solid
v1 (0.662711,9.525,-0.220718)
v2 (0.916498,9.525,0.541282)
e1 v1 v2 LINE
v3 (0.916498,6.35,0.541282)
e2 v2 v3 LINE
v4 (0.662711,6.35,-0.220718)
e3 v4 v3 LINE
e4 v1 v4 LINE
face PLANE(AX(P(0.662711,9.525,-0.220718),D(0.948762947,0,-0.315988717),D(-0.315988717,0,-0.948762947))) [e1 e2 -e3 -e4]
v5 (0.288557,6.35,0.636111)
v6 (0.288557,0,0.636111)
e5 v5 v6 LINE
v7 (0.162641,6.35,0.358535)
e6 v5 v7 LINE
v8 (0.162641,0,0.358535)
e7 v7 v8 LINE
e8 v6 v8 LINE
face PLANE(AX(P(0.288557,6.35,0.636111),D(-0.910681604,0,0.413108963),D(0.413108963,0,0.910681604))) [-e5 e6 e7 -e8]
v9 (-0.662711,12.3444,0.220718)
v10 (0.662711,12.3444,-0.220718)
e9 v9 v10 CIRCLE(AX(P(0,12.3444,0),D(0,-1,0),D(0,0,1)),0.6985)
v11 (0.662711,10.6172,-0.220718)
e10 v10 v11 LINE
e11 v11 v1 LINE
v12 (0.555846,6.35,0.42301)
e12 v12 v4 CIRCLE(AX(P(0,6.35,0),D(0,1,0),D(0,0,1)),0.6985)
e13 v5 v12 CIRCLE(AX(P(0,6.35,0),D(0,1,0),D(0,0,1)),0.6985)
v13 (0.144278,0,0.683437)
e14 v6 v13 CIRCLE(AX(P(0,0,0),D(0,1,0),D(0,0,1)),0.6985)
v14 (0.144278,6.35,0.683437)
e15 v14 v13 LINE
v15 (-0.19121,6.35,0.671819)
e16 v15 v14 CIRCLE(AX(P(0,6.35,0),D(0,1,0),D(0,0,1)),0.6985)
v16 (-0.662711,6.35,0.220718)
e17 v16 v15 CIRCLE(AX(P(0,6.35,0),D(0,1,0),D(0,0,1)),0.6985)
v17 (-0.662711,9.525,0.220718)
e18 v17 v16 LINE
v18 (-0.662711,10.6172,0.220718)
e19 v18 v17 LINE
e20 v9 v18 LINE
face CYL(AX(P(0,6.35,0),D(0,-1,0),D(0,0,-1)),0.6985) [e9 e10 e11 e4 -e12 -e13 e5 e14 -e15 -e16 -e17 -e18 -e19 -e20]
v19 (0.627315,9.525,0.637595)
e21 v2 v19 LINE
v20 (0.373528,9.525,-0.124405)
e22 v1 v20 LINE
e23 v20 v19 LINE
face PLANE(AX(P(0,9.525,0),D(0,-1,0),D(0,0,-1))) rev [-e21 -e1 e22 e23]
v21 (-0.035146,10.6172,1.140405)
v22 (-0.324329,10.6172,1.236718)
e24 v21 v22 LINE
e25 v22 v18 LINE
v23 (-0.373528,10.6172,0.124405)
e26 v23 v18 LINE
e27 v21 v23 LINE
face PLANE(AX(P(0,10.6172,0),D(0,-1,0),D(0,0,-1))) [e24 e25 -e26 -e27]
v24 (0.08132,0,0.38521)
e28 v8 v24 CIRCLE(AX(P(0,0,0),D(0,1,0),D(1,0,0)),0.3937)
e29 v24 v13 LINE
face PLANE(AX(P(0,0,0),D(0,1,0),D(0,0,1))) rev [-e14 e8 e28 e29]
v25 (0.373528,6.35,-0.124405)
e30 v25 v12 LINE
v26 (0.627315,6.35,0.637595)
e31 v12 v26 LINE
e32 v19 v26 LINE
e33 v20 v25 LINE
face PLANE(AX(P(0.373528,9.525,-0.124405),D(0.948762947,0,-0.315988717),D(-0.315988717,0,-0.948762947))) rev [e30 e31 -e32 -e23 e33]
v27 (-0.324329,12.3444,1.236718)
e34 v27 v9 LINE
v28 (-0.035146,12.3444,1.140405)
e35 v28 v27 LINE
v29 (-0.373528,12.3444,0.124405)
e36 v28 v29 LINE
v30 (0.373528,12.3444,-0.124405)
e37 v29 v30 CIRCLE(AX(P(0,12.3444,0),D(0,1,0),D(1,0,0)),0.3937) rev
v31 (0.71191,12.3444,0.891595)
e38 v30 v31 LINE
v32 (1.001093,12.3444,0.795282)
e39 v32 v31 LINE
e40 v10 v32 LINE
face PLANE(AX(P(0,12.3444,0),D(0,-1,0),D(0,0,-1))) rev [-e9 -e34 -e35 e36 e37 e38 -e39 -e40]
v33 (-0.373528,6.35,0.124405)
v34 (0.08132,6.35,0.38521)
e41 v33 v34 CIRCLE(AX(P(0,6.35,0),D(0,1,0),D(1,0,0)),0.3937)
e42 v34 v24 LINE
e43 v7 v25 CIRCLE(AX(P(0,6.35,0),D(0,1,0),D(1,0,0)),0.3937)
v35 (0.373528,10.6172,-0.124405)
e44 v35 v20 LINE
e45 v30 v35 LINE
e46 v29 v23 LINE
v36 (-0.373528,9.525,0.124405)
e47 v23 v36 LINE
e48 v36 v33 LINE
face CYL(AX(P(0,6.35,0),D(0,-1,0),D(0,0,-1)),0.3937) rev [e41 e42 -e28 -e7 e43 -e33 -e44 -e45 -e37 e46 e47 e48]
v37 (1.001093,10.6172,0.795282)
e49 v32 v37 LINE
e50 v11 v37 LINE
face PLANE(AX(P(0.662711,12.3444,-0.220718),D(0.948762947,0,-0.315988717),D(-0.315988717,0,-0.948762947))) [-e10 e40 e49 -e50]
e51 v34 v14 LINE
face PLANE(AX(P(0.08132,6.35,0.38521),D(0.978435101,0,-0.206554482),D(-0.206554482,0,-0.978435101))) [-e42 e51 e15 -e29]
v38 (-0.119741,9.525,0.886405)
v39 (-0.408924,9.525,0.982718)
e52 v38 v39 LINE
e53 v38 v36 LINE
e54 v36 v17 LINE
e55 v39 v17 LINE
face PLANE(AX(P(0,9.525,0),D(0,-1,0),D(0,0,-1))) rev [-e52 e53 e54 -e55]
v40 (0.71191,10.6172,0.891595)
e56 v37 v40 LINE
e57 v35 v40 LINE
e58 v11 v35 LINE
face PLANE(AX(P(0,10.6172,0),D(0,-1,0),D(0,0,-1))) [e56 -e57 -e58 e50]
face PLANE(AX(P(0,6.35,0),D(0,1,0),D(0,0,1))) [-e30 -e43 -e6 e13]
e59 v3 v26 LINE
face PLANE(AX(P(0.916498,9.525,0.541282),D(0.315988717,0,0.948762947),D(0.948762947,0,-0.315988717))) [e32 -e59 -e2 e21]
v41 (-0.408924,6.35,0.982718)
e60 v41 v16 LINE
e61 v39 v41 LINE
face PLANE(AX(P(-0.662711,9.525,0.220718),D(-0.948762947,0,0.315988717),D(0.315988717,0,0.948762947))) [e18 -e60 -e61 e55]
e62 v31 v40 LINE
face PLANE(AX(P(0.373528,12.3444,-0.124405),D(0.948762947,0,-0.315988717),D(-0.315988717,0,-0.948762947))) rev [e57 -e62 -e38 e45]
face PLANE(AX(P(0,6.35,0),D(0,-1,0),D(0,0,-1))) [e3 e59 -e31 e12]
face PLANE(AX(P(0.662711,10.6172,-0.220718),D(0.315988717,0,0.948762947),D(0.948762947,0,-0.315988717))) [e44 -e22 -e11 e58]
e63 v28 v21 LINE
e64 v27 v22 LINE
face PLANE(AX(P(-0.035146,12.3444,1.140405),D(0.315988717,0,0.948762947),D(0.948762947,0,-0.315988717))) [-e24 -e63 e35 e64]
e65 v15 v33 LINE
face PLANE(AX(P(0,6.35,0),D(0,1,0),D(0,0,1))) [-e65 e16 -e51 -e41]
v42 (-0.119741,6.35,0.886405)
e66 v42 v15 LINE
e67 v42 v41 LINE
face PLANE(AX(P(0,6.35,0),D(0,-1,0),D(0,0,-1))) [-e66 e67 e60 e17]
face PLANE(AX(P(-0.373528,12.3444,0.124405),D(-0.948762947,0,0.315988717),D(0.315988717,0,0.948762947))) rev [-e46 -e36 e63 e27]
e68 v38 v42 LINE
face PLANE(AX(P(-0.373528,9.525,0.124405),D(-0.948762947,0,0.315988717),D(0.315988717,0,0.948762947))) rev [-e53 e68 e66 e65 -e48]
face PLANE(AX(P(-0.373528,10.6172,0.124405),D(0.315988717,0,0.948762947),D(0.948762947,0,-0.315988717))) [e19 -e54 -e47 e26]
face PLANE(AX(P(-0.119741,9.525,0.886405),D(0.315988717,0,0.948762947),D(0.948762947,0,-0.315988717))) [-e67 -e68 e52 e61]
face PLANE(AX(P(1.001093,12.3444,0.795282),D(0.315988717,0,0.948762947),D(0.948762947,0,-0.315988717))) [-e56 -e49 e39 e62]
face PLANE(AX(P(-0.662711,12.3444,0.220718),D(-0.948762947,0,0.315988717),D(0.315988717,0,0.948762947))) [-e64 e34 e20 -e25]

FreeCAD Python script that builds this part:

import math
import FreeCAD as App
import Part
import Sketcher
Q = App.Units.Quantity

doc = App.newDocument("Part")
body = doc.addObject("PartDesign::Body", "Body")

sketch1 = doc.addObject("Sketcher::SketchObject", "Sketch")
body.addObject(sketch1)
sketch1.AttachmentSupport = (doc.XZ_Plane, [""])
sketch1.MapMode = "FlatFace"
sketch1.addGeometry([
    Part.ArcOfCircle(Part.Circle(App.Vector(0, 0, 0), App.Vector(0, 0, 1), 0.7), math.radians(78), math.radians(426)),
    Part.LineSegment(App.Vector(0.14, 0.68, 0), App.Vector(0.08, 0.39, 0)),
    Part.ArcOfCircle(Part.Circle(App.Vector(0, 0, 0), App.Vector(0, 0, 1), 0.39), math.radians(78), math.radians(426)),
    Part.LineSegment(App.Vector(0.16, 0.36, 0), App.Vector(0.29, 0.64, 0)),
], False)
sketch1.addConstraint([
    Sketcher.Constraint("Coincident", 0, 1, 1, 1),
    Sketcher.Constraint("Coincident", 1, 2, 2, 1),
    Sketcher.Constraint("Coincident", 2, 2, 3, 1),
    Sketcher.Constraint("Coincident", 3, 2, 0, 2),
    Sketcher.Constraint("Coincident", 0, 3, -1, 1),
    Sketcher.Constraint("Coincident", 2, 3, -1, 1),
    Sketcher.Constraint("Radius", 0, Q("0.0275 in")),
    Sketcher.Constraint("Radius", 2, Q("0.0155 in")),
    Sketcher.Constraint("DistanceY", 2, 2, 0, 1, 0.324902),
    Sketcher.Constraint("DistanceY", 1, 2, 3, 2, 0.250901),
    Sketcher.Constraint("DistanceX", -1, 1, 0, 1, 0.144278),
    Sketcher.Constraint("DistanceX", -1, 1, 1, 2, 0.08132),
])
pad1 = doc.addObject("PartDesign::Pad", "Pad")
body.addObject(pad1)
pad1.Profile = sketch1
pad1.Length = Q("0.25 in")
pad1.Reversed = True

sketch2 = doc.addObject("Sketcher::SketchObject", "Sketch001")
body.addObject(sketch2)
sketch2.AttachmentSupport = (doc.XZ_Plane, [""])
sketch2.MapMode = "FlatFace"
sketch2.AttachmentOffset = App.Placement(App.Vector(0, 0, -0.25 * 25.4), App.Rotation())
sketch2.addGeometry([
    Part.LineSegment(App.Vector(0.92, 0.54, 0), App.Vector(0.66, -0.22, 0)),
    Part.ArcOfCircle(Part.Circle(App.Vector(0, 0, 0), App.Vector(0, 0, 1), 0.7), math.radians(162), math.radians(342)),
    Part.LineSegment(App.Vector(-0.66, 0.22, 0), App.Vector(-0.41, 0.98, 0)),
    Part.LineSegment(App.Vector(-0.41, 0.98, 0), App.Vector(-0.12, 0.89, 0)),
    Part.LineSegment(App.Vector(-0.12, 0.89, 0), App.Vector(-0.37, 0.12, 0)),
    Part.ArcOfCircle(Part.Circle(App.Vector(0, 0, 0), App.Vector(0, 0, 1), 0.39), math.radians(162), math.radians(342)),
    Part.LineSegment(App.Vector(0.37, -0.12, 0), App.Vector(0.63, 0.64, 0)),
    Part.LineSegment(App.Vector(0.63, 0.64, 0), App.Vector(0.92, 0.54, 0)),
], False)
sketch2.addConstraint([
    Sketcher.Constraint("Tangent", 0, 2, 1, 2),
    Sketcher.Constraint("Tangent", 1, 1, 2, 1),
    Sketcher.Constraint("Coincident", 2, 2, 3, 1),
    Sketcher.Constraint("Coincident", 3, 2, 4, 1),
    Sketcher.Constraint("Tangent", 4, 2, 5, 1),
    Sketcher.Constraint("Tangent", 5, 2, 6, 1),
    Sketcher.Constraint("Coincident", 6, 2, 7, 1),
    Sketcher.Constraint("Coincident", 7, 2, 0, 1),
    Sketcher.Constraint("Coincident", 1, 3, -1, 1),
    Sketcher.Constraint("Coincident", 5, 3, -1, 1),
    Sketcher.Constraint("Parallel", 0, 2),
    Sketcher.Constraint("Perpendicular", 2, 3),
    Sketcher.Constraint("Perpendicular", 3, 4),
    Sketcher.Constraint("Parallel", 4, 6),
    Sketcher.Constraint("Perpendicular", 6, 7),
    Sketcher.Constraint("Equal", 0, 2),
    Sketcher.Constraint("Radius", 1, Q("0.0275 in")),
    Sketcher.Constraint("Radius", 5, Q("0.0155 in")),
    Sketcher.Constraint("DistanceY", 1, 1, 2, 2, Q("0.03 in")),
    Sketcher.Constraint("Distance", 0, 0.803151),
])
pad2 = doc.addObject("PartDesign::Pad", "Pad001")
body.addObject(pad2)
pad2.Profile = sketch2
pad2.Length = Q("0.125 in")
pad2.Reversed = True

sketch3 = doc.addObject("Sketcher::SketchObject", "Sketch002")
body.addObject(sketch3)
sketch3.AttachmentSupport = (doc.XZ_Plane, [""])
sketch3.MapMode = "FlatFace"
sketch3.AttachmentOffset = App.Placement(App.Vector(0, 0, -0.375 * 25.4), App.Rotation())
sketch3.addGeometry([
    Part.ArcOfCircle(Part.Circle(App.Vector(0, 0, 0), App.Vector(0, 0, 1), 0.7), math.radians(162), math.radians(342)),
    Part.LineSegment(App.Vector(-0.66, 0.22, 0), App.Vector(-0.37, 0.12, 0)),
    Part.ArcOfCircle(Part.Circle(App.Vector(0, 0, 0), App.Vector(0, 0, 1), 0.39), math.radians(162), math.radians(342)),
    Part.LineSegment(App.Vector(0.37, -0.12, 0), App.Vector(0.66, -0.22, 0)),
], False)
sketch3.addConstraint([
    Sketcher.Constraint("Coincident", 0, 1, 1, 1),
    Sketcher.Constraint("Coincident", 1, 2, 2, 1),
    Sketcher.Constraint("Coincident", 2, 2, 3, 1),
    Sketcher.Constraint("Coincident", 3, 2, 0, 2),
    Sketcher.Constraint("Coincident", 0, 3, -1, 1),
    Sketcher.Constraint("Coincident", 2, 3, -1, 1),
    Sketcher.Constraint("Parallel", 1, 3),
    Sketcher.Constraint("Radius", 0, Q("0.0275 in")),
    Sketcher.Constraint("Radius", 2, Q("0.0155 in")),
    Sketcher.Constraint("DistanceX", 0, 1, -1, 1, 0.662711),
    Sketcher.Constraint("DistanceX", -1, 1, 3, 2, 0.662711),
    Sketcher.Constraint("DistanceY", 2, 2, 1, 2, 0.24881),
])
pad3 = doc.addObject("PartDesign::Pad", "Pad002")
body.addObject(pad3)
pad3.Profile = sketch3
pad3.Length = Q("0.043 in")
pad3.Reversed = True

sketch4 = doc.addObject("Sketcher::SketchObject", "Sketch003")
body.addObject(sketch4)
sketch4.AttachmentSupport = (doc.XZ_Plane, [""])
sketch4.MapMode = "FlatFace"
sketch4.AttachmentOffset = App.Placement(App.Vector(0, 0, -0.418 * 25.4), App.Rotation())
sketch4.addGeometry([
    Part.LineSegment(App.Vector(1, 0.8, 0), App.Vector(0.66, -0.22, 0)),
    Part.ArcOfCircle(Part.Circle(App.Vector(0, 0, 0), App.Vector(0, 0, 1), 0.7), math.radians(162), math.radians(342)),
    Part.LineSegment(App.Vector(-0.66, 0.22, 0), App.Vector(-0.32, 1.24, 0)),
    Part.LineSegment(App.Vector(-0.32, 1.24, 0), App.Vector(-0.04, 1.14, 0)),
    Part.LineSegment(App.Vector(-0.04, 1.14, 0), App.Vector(-0.37, 0.12, 0)),
    Part.ArcOfCircle(Part.Circle(App.Vector(0, 0, 0), App.Vector(0, 0, 1), 0.39), math.radians(162), math.radians(342)),
    Part.LineSegment(App.Vector(0.37, -0.12, 0), App.Vector(0.71, 0.89, 0)),
    Part.LineSegment(App.Vector(0.71, 0.89, 0), App.Vector(1, 0.8, 0)),
], False)
sketch4.addConstraint([
    Sketcher.Constraint("Tangent", 0, 2, 1, 2),
    Sketcher.Constraint("Tangent", 1, 1, 2, 1),
    Sketcher.Constraint("Coincident", 2, 2, 3, 1),
    Sketcher.Constraint("Coincident", 3, 2, 4, 1),
    Sketcher.Constraint("Tangent", 4, 2, 5, 1),
    Sketcher.Constraint("Tangent", 5, 2, 6, 1),
    Sketcher.Constraint("Coincident", 6, 2, 7, 1),
    Sketcher.Constraint("Coincident", 7, 2, 0, 1),
    Sketcher.Constraint("Coincident", 1, 3, -1, 1),
    Sketcher.Constraint("Coincident", 5, 3, -1, 1),
    Sketcher.Constraint("Parallel", 0, 2),
    Sketcher.Constraint("Perpendicular", 2, 3),
    Sketcher.Constraint("Perpendicular", 3, 4),
    Sketcher.Constraint("Parallel", 4, 6),
    Sketcher.Constraint("Perpendicular", 6, 7),
    Sketcher.Constraint("Equal", 0, 2),
    Sketcher.Constraint("Radius", 1, Q("0.0275 in")),
    Sketcher.Constraint("Radius", 5, Q("0.0155 in")),
    Sketcher.Constraint("DistanceY", 1, 1, 2, 2, Q("0.04 in")),
    Sketcher.Constraint("DistanceX", 0, 2, 6, 2, 0.049199),
])
pad4 = doc.addObject("PartDesign::Pad", "Pad003")
body.addObject(pad4)
pad4.Profile = sketch4
pad4.Length = Q("0.068 in")
pad4.Reversed = True

doc.recompute()
